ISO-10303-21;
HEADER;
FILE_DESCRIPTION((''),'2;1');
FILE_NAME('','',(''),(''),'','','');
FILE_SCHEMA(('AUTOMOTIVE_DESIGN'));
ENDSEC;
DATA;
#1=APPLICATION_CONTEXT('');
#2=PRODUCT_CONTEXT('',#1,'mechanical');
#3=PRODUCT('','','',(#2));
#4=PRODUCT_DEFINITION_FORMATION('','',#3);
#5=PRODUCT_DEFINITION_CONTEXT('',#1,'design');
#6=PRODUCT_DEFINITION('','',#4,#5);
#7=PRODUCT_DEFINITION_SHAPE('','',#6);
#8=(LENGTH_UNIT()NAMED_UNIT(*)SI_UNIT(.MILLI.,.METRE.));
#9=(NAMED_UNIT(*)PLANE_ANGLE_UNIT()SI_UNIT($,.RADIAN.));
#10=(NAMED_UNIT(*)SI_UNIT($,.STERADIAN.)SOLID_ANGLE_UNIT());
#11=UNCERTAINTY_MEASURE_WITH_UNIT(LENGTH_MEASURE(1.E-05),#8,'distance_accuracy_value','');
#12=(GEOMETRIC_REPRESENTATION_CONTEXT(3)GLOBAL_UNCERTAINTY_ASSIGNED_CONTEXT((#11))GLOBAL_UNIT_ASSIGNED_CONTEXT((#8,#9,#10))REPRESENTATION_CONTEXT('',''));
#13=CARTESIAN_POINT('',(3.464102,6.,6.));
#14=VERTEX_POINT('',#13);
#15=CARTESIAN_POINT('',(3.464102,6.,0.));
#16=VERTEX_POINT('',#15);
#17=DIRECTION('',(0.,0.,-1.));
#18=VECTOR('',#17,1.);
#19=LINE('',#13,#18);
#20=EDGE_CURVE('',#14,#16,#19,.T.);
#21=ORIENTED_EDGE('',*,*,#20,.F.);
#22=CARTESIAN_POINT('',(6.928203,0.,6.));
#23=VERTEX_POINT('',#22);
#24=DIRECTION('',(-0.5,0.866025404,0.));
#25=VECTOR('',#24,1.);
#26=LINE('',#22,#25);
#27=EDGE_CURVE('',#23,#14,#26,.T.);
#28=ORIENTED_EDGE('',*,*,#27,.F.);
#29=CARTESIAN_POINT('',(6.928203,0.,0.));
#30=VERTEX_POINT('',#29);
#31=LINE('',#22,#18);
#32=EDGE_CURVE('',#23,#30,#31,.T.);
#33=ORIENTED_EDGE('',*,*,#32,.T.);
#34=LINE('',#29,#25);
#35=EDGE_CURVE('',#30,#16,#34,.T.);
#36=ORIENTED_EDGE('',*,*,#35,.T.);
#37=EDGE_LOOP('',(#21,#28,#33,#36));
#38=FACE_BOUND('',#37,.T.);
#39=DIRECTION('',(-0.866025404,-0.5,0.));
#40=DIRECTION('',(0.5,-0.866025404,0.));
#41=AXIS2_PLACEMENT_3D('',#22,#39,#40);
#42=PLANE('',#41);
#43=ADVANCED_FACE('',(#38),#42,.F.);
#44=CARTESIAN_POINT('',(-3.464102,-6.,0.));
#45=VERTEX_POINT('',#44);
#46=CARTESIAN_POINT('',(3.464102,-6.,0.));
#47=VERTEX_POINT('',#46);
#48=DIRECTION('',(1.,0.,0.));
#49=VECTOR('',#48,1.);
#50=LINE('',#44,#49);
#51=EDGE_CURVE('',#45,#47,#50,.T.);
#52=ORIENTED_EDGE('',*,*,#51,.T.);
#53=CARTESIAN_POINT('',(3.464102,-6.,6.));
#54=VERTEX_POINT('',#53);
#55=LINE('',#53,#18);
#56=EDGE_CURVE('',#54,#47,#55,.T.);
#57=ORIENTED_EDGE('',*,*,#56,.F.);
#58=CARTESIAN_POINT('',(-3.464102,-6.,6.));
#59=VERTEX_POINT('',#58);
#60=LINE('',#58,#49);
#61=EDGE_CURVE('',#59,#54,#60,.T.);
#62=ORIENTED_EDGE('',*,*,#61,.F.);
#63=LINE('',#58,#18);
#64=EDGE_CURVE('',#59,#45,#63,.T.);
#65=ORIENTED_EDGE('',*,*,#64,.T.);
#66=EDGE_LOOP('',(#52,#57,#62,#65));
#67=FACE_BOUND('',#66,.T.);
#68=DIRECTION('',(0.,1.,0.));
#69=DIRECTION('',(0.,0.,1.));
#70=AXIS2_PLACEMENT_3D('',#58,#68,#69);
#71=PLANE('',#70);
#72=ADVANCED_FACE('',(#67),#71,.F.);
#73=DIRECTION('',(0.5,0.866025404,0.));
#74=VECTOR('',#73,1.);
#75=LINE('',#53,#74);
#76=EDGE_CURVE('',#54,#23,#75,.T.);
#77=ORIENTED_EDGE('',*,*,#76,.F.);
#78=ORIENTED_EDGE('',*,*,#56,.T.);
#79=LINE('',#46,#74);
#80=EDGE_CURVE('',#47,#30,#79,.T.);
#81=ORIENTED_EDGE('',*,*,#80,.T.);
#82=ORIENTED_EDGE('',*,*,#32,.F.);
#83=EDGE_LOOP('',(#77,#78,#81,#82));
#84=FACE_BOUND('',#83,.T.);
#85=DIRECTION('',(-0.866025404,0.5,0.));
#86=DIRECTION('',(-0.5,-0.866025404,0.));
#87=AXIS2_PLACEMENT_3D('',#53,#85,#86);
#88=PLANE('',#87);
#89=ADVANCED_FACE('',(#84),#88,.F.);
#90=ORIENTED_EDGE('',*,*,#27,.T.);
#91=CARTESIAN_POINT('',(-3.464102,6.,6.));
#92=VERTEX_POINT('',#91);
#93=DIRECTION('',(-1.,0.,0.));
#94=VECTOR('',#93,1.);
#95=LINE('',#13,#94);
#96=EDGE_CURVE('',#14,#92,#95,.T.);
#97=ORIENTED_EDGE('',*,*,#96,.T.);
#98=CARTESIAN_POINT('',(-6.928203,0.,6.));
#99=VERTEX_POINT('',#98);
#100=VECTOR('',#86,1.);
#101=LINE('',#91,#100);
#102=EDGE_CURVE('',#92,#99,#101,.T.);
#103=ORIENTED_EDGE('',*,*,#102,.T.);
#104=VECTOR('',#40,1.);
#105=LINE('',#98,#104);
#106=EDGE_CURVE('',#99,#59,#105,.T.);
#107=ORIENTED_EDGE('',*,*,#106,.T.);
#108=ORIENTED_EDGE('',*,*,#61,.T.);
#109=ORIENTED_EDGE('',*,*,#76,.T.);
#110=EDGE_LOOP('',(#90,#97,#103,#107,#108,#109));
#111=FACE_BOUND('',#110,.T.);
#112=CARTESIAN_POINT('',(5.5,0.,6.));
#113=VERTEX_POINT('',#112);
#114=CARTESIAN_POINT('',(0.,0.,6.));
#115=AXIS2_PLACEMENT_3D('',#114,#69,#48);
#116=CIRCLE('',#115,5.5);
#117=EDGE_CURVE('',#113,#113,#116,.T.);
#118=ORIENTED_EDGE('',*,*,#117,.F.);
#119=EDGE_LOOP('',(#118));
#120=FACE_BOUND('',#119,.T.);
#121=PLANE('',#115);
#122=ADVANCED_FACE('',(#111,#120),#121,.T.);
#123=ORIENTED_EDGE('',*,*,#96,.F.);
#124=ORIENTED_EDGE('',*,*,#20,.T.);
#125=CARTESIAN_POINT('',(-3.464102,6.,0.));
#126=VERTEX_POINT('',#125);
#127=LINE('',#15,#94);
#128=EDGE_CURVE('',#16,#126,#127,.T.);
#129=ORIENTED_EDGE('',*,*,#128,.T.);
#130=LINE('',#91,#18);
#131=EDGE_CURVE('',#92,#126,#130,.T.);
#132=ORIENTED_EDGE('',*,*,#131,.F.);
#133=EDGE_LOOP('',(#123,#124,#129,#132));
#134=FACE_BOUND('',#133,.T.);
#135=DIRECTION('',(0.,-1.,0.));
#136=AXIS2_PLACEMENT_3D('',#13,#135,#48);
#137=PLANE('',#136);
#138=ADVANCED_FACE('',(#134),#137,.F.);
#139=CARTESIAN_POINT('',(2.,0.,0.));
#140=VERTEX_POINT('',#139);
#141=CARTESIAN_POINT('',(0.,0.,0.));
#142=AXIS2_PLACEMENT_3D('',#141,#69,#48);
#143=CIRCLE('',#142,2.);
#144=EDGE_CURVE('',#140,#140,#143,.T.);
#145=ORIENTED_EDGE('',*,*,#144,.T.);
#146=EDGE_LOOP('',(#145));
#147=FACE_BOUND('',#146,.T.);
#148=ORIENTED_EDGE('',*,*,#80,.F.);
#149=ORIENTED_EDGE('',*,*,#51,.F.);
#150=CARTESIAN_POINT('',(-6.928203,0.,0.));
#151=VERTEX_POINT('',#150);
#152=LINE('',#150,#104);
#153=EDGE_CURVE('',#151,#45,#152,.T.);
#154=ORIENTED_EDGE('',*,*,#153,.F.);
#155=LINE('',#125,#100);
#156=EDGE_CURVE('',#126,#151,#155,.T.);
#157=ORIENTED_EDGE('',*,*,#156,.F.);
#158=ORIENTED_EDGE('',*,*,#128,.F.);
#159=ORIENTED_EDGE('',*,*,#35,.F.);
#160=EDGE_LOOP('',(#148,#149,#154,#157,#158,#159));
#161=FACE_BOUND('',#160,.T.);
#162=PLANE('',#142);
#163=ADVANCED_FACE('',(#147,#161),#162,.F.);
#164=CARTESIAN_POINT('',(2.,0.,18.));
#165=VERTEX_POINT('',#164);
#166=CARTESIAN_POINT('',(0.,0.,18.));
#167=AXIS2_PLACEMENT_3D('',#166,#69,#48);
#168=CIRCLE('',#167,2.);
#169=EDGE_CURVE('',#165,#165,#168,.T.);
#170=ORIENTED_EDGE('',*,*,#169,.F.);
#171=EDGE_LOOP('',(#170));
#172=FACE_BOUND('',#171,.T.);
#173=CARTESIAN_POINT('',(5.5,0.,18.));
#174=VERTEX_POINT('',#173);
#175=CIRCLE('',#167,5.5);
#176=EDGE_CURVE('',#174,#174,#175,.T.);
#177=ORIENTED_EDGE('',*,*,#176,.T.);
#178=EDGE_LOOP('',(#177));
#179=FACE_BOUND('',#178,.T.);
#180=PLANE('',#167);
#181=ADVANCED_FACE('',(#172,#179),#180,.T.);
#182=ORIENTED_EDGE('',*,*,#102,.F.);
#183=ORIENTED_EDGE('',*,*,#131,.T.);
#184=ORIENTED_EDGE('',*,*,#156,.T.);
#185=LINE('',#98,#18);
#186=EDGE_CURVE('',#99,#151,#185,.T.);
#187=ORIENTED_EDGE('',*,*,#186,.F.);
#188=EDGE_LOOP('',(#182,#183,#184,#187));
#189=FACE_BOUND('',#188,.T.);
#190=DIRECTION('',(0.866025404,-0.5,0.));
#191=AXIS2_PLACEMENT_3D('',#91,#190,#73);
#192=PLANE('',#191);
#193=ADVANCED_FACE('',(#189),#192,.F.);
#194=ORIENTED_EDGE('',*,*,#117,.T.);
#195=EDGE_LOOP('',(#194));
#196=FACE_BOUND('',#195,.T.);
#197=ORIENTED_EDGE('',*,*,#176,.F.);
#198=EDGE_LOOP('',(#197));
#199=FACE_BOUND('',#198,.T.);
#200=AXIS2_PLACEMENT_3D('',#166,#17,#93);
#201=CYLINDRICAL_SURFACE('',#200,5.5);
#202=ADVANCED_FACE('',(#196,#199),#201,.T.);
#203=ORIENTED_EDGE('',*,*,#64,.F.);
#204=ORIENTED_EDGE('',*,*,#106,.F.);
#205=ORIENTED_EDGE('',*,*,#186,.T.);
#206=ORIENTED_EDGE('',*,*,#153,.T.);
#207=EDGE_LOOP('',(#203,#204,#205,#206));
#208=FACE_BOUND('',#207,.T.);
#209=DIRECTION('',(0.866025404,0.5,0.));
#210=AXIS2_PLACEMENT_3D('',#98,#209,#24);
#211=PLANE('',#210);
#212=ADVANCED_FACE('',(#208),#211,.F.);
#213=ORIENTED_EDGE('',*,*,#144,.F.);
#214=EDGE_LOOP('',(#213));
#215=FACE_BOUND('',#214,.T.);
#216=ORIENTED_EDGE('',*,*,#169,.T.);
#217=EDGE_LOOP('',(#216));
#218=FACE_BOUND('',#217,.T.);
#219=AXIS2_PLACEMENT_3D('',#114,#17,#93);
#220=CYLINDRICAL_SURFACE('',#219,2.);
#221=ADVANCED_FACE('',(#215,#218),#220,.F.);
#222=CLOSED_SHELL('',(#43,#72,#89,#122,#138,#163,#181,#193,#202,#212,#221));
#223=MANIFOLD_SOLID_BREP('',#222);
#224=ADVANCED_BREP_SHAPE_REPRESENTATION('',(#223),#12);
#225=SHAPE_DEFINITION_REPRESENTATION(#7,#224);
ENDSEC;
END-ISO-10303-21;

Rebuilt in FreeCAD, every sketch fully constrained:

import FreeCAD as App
import Part
import Sketcher

V = App.Vector
Q = App.Units.Quantity


def add_polygon(sketch, points):
    """Adds a closed chain of lines whose ends are joined by coincident constraints."""
    first, n = sketch.GeometryCount, len(points)
    for a, b in zip(points, points[1:] + points[:1]):
        sketch.addGeometry(Part.LineSegment(App.Vector(*a, 0), App.Vector(*b, 0)), False)
    for i in range(n):
        sketch.addConstraint(Sketcher.Constraint("Coincident", first + i, 2, first + (i + 1) % n, 1))

doc = App.newDocument("Part")
params = doc.addObject("Spreadsheet::Sheet", "Params")
for row, (alias, value) in enumerate([
    ("sketch1_diameter", "4 mm"),
    ("pad1_length", "6 mm"),
    ("sketch2_diameter", "11 mm"),
    ("sketch2_diameter2", "4 mm"),
    ("pad2_length", "12 mm"),
], start=1):
    params.set(f"A{row}", alias)
    params.set(f"B{row}", "=" + value)
    params.setAlias(f"B{row}", alias)

body = doc.addObject("PartDesign::Body", "Body")

sketch1 = body.newObject("Sketcher::SketchObject", "Sketch")
sketch1.AttachmentSupport = (doc.getObject("XY_Plane"), [""])
sketch1.MapMode = "FlatFace"
add_polygon(sketch1, [(3.5, -6), (6.9, 0), (3.5, 6), (-3.5, 6), (-6.9, 0), (-3.5, -6)])
sketch1.addGeometry(Part.Circle(V(0, 0, 0), V(0, 0, 1), 2), False)
sketch1.addConstraint(Sketcher.Constraint("Horizontal", 2))
sketch1.addConstraint(Sketcher.Constraint("Horizontal", 5))
sketch1.addConstraint(Sketcher.Constraint("Coincident", 6, 3, -1, 1))
sketch1.addConstraint(Sketcher.Constraint("Symmetric", 0, 2, 3, 2, -1, 1))
sketch1.addConstraint(Sketcher.Constraint("Symmetric", 1, 2, 4, 2, -1, 1))
sketch1.addConstraint(Sketcher.Constraint("PointOnObject", 0, 2, -1))
sketch1.addConstraint(Sketcher.Constraint("Parallel", 0, 3))
sketch1.addConstraint(Sketcher.Constraint("Vertical", 2, 2, 4, 2))
sketch1.addConstraint(Sketcher.Constraint("Diameter", 6, Q("4 mm")))
sketch1.addConstraint(Sketcher.Constraint("Angle", 0, Q("60 deg")))
sketch1.addConstraint(Sketcher.Constraint("DistanceY", -1, 1, 1, 2, Q("6 mm")))
sketch1.addConstraint(Sketcher.Constraint("DistanceX", -1, 1, 1, 2, Q("3.464102 mm")))
sketch1.setExpression("Constraints[14]", "Params.sketch1_diameter")
pad1 = body.newObject("PartDesign::Pad", "Pad")
pad1.Profile = sketch1
pad1.setExpression("Length", "Params.pad1_length")

sketch2 = body.newObject("Sketcher::SketchObject", "Sketch001")
sketch2.AttachmentSupport = (doc.getObject("XY_Plane"), [""])
sketch2.MapMode = "FlatFace"
sketch2.AttachmentOffset = App.Placement(V(0, 0, 6), App.Rotation())
sketch2.addGeometry(Part.Circle(V(0, 0, 0), V(0, 0, 1), 5.5), False)
sketch2.addGeometry(Part.Circle(V(0, 0, 0), V(0, 0, 1), 2), False)
sketch2.addConstraint(Sketcher.Constraint("Coincident", 0, 3, -1, 1))
sketch2.addConstraint(Sketcher.Constraint("Coincident", 1, 3, -1, 1))
sketch2.addConstraint(Sketcher.Constraint("Diameter", 0, Q("11 mm")))
sketch2.addConstraint(Sketcher.Constraint("Diameter", 1, Q("4 mm")))
sketch2.setExpression("Constraints[2]", "Params.sketch2_diameter")
sketch2.setExpression("Constraints[3]", "Params.sketch2_diameter2")
pad2 = body.newObject("PartDesign::Pad", "Pad001")
pad2.Profile = sketch2
pad2.setExpression("Length", "Params.pad2_length")

doc.recompute()
